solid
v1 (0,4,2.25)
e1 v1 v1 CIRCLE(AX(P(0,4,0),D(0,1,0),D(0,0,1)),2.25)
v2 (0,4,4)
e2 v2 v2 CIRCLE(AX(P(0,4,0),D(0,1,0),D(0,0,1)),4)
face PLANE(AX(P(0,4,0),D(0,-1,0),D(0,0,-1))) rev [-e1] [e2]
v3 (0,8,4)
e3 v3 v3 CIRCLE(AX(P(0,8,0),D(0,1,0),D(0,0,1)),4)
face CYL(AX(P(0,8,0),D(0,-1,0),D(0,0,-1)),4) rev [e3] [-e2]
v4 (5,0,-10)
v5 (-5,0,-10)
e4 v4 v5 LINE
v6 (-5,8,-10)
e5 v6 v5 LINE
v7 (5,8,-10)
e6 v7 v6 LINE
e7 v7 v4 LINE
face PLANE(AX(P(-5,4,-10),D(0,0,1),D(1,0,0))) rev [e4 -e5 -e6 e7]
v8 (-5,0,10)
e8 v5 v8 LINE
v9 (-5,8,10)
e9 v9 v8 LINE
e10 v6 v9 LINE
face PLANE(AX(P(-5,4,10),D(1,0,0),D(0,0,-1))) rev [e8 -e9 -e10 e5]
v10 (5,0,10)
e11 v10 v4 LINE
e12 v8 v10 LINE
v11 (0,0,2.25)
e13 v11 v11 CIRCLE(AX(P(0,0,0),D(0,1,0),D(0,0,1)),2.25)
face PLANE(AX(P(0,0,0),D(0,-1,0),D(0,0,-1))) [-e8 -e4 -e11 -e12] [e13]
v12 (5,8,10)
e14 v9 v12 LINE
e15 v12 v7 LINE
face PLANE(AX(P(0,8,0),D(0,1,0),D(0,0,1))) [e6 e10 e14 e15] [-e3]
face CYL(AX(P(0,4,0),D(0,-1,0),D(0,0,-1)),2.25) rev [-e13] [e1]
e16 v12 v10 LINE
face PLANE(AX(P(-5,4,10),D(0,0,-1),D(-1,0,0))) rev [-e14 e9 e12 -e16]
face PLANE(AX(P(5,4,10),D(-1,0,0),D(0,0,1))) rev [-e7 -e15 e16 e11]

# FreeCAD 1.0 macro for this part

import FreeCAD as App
import Part
import Sketcher
Q = App.Units.Quantity

doc = App.newDocument("Part")
body = doc.addObject("PartDesign::Body", "Body")

sketch1 = body.newObject("Sketcher::SketchObject", "Sketch")
sketch1.AttachmentSupport = (doc.getObject("XZ_Plane"), [""])
sketch1.MapMode = "FlatFace"
sketch1.addGeometry([
    Part.LineSegment(App.Vector(-5, -10, 0), App.Vector(-5, 10, 0)),
    Part.LineSegment(App.Vector(-5, 10, 0), App.Vector(5, 10, 0)),
    Part.LineSegment(App.Vector(5, 10, 0), App.Vector(5, -10, 0)),
    Part.LineSegment(App.Vector(5, -10, 0), App.Vector(-5, -10, 0)),
    Part.Circle(App.Vector(0, 0, 0), App.Vector(0, 0, 1), 2.2),
], False)
sketch1.addConstraint([
    Sketcher.Constraint("Coincident", 0, 2, 1, 1),
    Sketcher.Constraint("Coincident", 1, 2, 2, 1),
    Sketcher.Constraint("Coincident", 2, 2, 3, 1),
    Sketcher.Constraint("Coincident", 3, 2, 0, 1),
    Sketcher.Constraint("Vertical", 0),
    Sketcher.Constraint("Horizontal", 1),
    Sketcher.Constraint("Vertical", 2),
    Sketcher.Constraint("Horizontal", 3),
    Sketcher.Constraint("Coincident", 4, 3, -1, 1),
    Sketcher.Constraint("Symmetric", 0, 2, 2, 2, -1, 1),
    Sketcher.Constraint("Diameter", 4, Q("4.5 mm")),
    Sketcher.Constraint("DistanceX", 1, 1, 1, 2, Q("10 mm")),
    Sketcher.Constraint("DistanceY", 0, 1, 0, 2, Q("20 mm")),
])
pad1 = body.newObject("PartDesign::Pad", "Pad")
pad1.Profile = sketch1
pad1.Length = 4
pad1.Reversed = True

sketch2 = body.newObject("Sketcher::SketchObject", "Sketch001")
sketch2.AttachmentSupport = (doc.getObject("XZ_Plane"), [""])
sketch2.MapMode = "FlatFace"
sketch2.AttachmentOffset = App.Placement(App.Vector(0, 0, -4), App.Rotation())
sketch2.addGeometry([
    Part.LineSegment(App.Vector(-5, -10, 0), App.Vector(-5, 10, 0)),
    Part.LineSegment(App.Vector(-5, 10, 0), App.Vector(5, 10, 0)),
    Part.LineSegment(App.Vector(5, 10, 0), App.Vector(5, -10, 0)),
    Part.LineSegment(App.Vector(5, -10, 0), App.Vector(-5, -10, 0)),
    Part.Circle(App.Vector(0, 0, 0), App.Vector(0, 0, 1), 4),
], False)
sketch2.addConstraint([
    Sketcher.Constraint("Coincident", 0, 2, 1, 1),
    Sketcher.Constraint("Coincident", 1, 2, 2, 1),
    Sketcher.Constraint("Coincident", 2, 2, 3, 1),
    Sketcher.Constraint("Coincident", 3, 2, 0, 1),
    Sketcher.Constraint("Vertical", 0),
    Sketcher.Constraint("Horizontal", 1),
    Sketcher.Constraint("Vertical", 2),
    Sketcher.Constraint("Horizontal", 3),
    Sketcher.Constraint("Coincident", 4, 3, -1, 1),
    Sketcher.Constraint("Symmetric", 0, 2, 2, 2, -1, 1),
    Sketcher.Constraint("Diameter", 4, Q("8 mm")),
    Sketcher.Constraint("DistanceX", 1, 1, 1, 2, Q("10 mm")),
    Sketcher.Constraint("DistanceY", 0, 1, 0, 2, Q("20 mm")),
])
pad2 = body.newObject("PartDesign::Pad", "Pad001")
pad2.Profile = sketch2
pad2.Length = 4
pad2.Reversed = True

doc.recompute()
